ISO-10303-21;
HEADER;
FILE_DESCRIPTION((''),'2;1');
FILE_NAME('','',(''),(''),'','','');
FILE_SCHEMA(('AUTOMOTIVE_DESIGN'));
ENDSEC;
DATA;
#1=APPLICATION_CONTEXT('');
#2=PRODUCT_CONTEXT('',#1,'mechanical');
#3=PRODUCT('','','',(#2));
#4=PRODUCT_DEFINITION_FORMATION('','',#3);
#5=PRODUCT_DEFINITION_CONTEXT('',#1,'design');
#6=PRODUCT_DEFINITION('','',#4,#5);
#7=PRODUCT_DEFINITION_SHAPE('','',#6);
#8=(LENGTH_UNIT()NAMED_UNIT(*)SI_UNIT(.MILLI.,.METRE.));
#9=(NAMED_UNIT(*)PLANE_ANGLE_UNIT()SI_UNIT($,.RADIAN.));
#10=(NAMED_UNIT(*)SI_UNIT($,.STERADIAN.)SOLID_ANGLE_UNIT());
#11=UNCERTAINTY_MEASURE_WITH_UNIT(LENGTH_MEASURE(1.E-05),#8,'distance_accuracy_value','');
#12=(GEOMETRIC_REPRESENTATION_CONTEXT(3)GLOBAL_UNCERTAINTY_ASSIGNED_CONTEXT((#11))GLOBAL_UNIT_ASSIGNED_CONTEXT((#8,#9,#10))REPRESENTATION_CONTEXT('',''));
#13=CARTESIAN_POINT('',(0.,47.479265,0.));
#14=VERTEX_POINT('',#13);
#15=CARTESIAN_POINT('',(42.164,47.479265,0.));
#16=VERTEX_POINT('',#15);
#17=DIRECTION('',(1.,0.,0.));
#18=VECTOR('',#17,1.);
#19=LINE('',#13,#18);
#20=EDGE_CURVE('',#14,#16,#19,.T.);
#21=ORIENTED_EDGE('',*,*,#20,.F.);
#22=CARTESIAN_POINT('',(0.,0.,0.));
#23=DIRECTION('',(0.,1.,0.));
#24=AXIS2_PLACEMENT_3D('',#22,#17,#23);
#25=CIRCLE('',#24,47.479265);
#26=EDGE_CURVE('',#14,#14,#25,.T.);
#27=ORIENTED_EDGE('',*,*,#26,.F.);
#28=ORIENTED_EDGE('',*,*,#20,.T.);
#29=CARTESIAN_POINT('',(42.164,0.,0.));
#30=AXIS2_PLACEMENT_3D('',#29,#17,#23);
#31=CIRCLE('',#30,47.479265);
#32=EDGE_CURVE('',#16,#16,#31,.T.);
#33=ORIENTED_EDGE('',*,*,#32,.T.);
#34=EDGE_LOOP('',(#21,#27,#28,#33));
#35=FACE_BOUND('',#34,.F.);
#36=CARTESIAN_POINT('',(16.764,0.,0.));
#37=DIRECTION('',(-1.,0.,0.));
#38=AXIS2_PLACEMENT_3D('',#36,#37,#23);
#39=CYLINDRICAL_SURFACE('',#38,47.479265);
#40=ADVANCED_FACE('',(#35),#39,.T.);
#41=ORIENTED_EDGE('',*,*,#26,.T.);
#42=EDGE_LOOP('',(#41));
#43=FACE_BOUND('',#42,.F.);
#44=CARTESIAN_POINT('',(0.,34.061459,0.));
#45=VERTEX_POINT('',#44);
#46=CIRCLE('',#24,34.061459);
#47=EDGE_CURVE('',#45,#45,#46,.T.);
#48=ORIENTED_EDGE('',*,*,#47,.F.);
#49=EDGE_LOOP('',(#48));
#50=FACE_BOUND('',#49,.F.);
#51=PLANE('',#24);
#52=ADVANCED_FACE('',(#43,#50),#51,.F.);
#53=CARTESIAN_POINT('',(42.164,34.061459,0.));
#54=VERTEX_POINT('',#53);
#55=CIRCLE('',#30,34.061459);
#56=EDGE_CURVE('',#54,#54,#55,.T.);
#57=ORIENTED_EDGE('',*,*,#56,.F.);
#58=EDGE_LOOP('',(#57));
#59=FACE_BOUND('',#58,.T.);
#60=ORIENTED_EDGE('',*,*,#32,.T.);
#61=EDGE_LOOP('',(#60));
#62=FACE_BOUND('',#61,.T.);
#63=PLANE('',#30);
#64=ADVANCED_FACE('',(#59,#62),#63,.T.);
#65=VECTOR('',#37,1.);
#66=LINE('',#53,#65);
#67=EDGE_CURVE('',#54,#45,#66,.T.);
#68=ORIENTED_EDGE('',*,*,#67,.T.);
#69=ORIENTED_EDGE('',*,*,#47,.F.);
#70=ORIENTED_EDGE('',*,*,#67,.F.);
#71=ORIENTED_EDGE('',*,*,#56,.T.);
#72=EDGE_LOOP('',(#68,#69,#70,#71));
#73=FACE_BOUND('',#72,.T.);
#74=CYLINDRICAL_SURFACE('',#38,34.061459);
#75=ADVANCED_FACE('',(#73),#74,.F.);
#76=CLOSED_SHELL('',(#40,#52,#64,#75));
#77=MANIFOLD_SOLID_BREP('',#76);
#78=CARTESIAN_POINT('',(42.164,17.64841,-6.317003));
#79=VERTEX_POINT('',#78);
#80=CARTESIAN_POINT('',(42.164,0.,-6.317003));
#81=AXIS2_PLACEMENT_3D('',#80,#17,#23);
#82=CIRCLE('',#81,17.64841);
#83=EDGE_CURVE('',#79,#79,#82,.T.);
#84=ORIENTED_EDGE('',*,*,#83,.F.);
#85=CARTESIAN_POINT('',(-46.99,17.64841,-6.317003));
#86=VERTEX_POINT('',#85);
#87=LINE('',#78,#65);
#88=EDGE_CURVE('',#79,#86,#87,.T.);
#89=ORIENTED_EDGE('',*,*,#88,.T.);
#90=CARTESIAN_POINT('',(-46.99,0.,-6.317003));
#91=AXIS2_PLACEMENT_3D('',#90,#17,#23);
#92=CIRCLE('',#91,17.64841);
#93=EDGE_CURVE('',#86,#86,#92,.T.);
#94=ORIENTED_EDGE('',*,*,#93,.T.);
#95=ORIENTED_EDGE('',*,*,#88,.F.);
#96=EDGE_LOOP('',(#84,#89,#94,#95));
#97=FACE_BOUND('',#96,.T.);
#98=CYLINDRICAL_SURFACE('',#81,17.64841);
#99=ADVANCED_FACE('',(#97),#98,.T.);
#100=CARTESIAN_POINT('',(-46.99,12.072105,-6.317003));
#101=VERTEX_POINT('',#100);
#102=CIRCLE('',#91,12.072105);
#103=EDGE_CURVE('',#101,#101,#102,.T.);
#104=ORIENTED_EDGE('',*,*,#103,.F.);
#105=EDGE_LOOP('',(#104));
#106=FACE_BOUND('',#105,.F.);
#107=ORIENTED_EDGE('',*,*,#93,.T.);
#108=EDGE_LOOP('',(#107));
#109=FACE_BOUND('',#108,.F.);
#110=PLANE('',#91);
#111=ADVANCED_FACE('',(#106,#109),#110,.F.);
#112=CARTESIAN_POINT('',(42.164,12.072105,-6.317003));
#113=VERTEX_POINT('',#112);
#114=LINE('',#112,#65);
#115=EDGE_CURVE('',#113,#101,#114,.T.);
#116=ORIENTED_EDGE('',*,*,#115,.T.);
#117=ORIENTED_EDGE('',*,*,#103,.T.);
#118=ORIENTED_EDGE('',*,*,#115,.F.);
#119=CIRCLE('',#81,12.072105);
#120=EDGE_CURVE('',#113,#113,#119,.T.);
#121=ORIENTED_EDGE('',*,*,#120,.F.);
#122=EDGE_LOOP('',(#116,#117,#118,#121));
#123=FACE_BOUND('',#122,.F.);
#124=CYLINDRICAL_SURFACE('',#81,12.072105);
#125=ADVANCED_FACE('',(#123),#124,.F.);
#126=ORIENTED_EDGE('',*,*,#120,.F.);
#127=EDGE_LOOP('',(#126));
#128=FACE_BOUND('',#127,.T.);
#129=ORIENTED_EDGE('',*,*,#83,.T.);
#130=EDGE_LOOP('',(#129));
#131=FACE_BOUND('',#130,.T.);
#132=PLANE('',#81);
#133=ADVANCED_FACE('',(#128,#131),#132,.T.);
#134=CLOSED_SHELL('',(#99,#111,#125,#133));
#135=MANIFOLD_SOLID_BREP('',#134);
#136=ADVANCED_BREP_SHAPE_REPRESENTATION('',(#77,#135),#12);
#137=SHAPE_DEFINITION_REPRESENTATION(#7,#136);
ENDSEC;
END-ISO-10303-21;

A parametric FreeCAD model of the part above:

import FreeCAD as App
import Part
import Sketcher
Q = App.Units.Quantity

doc = App.newDocument("Part")
params = doc.addObject("Spreadsheet::Sheet", "Params")
for row, (alias, value) in enumerate([
    ("pad1_length", "0.66 in"),
    ("pad2_length", "1 in"),
    ("pad3_length", "3.51 in"),
], start=1):
    params.set(f"A{row}", alias)
    params.set(f"B{row}", "=" + value)
    params.setAlias(f"B{row}", alias)

body = doc.addObject("PartDesign::Body", "Body")

# Sketch on YZ plane
sketch1 = body.newObject("Sketcher::SketchObject", "Sketch")
sketch1.AttachmentSupport = (doc.getObject("YZ_Plane"), [""])
sketch1.MapMode = "FlatFace"
sketch1.addGeometry(Part.Circle(App.Vector(0, 0, 0), App.Vector(0, 0, 1), 47.479265), False)
sketch1.addGeometry(Part.Circle(App.Vector(0, 0, 0), App.Vector(0, 0, 1), 34.061459), False)
sketch1.addConstraint(Sketcher.Constraint("Coincident", 0, 3, -1, 1))
sketch1.addConstraint(Sketcher.Constraint("Coincident", 1, 3, -1, 1))
sketch1.addConstraint(Sketcher.Constraint("Diameter", 0, Q("94.95853 mm")))
sketch1.addConstraint(Sketcher.Constraint("Diameter", 1, Q("68.122918 mm")))
pad1 = body.newObject("PartDesign::Pad", "Pad")
pad1.Profile = sketch1
pad1.setExpression("Length", "Params.pad1_length")

# Sketch on YZ plane
sketch2 = body.newObject("Sketcher::SketchObject", "Sketch001")
sketch2.AttachmentSupport = (doc.getObject("YZ_Plane"), [""])
sketch2.MapMode = "FlatFace"
sketch2.AttachmentOffset = App.Placement(App.Vector(0, 0, 0.66 * 25.4), App.Rotation())
sketch2.addGeometry(Part.Circle(App.Vector(0, 0, 0), App.Vector(0, 0, 1), 47.479265), False)
sketch2.addGeometry(Part.Circle(App.Vector(0, 0, 0), App.Vector(0, 0, 1), 34.061459), False)
sketch2.addConstraint(Sketcher.Constraint("Coincident", 0, 3, -1, 1))
sketch2.addConstraint(Sketcher.Constraint("Coincident", 1, 3, -1, 1))
sketch2.addConstraint(Sketcher.Constraint("Diameter", 0, Q("94.95853 mm")))
sketch2.addConstraint(Sketcher.Constraint("Diameter", 1, Q("68.122918 mm")))
pad2 = body.newObject("PartDesign::Pad", "Pad001")
pad2.Profile = sketch2
pad2.setExpression("Length", "Params.pad2_length")
body2 = doc.addObject("PartDesign::Body", "Body001")

# Sketch on YZ plane
sketch3 = body2.newObject("Sketcher::SketchObject", "Sketch002")
sketch3.AttachmentSupport = (doc.getObject("YZ_Plane001"), [""])
sketch3.MapMode = "FlatFace"
sketch3.AttachmentOffset = App.Placement(App.Vector(0, 0, 1.66 * 25.4), App.Rotation())
sketch3.addGeometry(Part.Circle(App.Vector(0, -6.317003, 0), App.Vector(0, 0, 1), 17.64841), False)
sketch3.addGeometry(Part.Circle(App.Vector(0, -6.317003, 0), App.Vector(0, 0, 1), 12.072105), False)
sketch3.addConstraint(Sketcher.Constraint("Coincident", 1, 3, 0, 3))
sketch3.addConstraint(Sketcher.Constraint("PointOnObject", 0, 3, -2))
sketch3.addConstraint(Sketcher.Constraint("Diameter", 0, Q("35.29682 mm")))
sketch3.addConstraint(Sketcher.Constraint("Diameter", 1, Q("24.14421 mm")))
sketch3.addConstraint(Sketcher.Constraint("DistanceY", 0, 3, -1, 1, Q("6.317003 mm")))
pad3 = body2.newObject("PartDesign::Pad", "Pad002")
pad3.Profile = sketch3
pad3.setExpression("Length", "Params.pad3_length")
pad3.Reversed = True

doc.recompute()
